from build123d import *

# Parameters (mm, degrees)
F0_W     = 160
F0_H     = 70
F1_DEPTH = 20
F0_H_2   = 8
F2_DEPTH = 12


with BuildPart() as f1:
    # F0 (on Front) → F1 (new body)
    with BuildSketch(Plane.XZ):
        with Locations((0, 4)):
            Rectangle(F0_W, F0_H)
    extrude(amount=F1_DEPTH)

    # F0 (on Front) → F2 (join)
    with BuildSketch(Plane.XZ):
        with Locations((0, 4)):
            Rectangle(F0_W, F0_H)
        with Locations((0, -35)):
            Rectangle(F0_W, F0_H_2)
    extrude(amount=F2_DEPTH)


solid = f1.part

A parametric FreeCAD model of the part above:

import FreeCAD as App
import Part
import Sketcher
Q = App.Units.Quantity


def add_polygon(sketch, points):
    """Adds a closed chain of lines whose ends are joined by coincident constraints."""
    first, n = sketch.GeometryCount, len(points)
    for a, b in zip(points, points[1:] + points[:1]):
        sketch.addGeometry(Part.LineSegment(App.Vector(*a, 0), App.Vector(*b, 0)), False)
    for i in range(n):
        sketch.addConstraint(Sketcher.Constraint("Coincident", first + i, 2, first + (i + 1) % n, 1))

doc = App.newDocument("Part")
body = doc.addObject("PartDesign::Body", "Body")

# Sketch on XZ plane
sketch1 = body.newObject("Sketcher::SketchObject", "Sketch")
sketch1.AttachmentSupport = (doc.getObject("XZ_Plane"), [""])
sketch1.MapMode = "FlatFace"
add_polygon(sketch1, [(-80, 39), (-80, -31), (80, -31), (80, 39)])  # lines 0-3
sketch1.addConstraint([
    Sketcher.Constraint("Vertical", 0),
    Sketcher.Constraint("Horizontal", 1),
    Sketcher.Constraint("Vertical", 2),
    Sketcher.Constraint("Horizontal", 3),
    Sketcher.Constraint("DistanceX", 1, 1, 1, 2, Q("160 mm")),
    Sketcher.Constraint("DistanceY", 0, 2, 0, 1, Q("70 mm")),
    Sketcher.Constraint("DistanceX", 0, 2, -1, 1, Q("80 mm")),
    Sketcher.Constraint("DistanceY", 0, 2, -1, 1, Q("31 mm")),
])
pad1 = body.newObject("PartDesign::Pad", "Pad")
pad1.Profile = sketch1
pad1.Length = 20

# Sketch on XZ plane
sketch2 = body.newObject("Sketcher::SketchObject", "Sketch001")
sketch2.AttachmentSupport = (doc.getObject("XZ_Plane"), [""])
sketch2.MapMode = "FlatFace"
add_polygon(sketch2, [(-80, 39), (-80, -39), (80, -39), (80, 39)])  # lines 0-3
sketch2.addConstraint([
    Sketcher.Constraint("Vertical", 0),
    Sketcher.Constraint("Horizontal", 1),
    Sketcher.Constraint("Vertical", 2),
    Sketcher.Constraint("Horizontal", 3),
    Sketcher.Constraint("Symmetric", 0, 2, 2, 2, -1, 1),
    Sketcher.Constraint("DistanceX", 1, 1, 1, 2, Q("160 mm")),
    Sketcher.Constraint("DistanceY", 0, 2, 0, 1, Q("78 mm")),
])
pad2 = body.newObject("PartDesign::Pad", "Pad001")
pad2.Profile = sketch2
pad2.Length = 12

doc.recompute()
